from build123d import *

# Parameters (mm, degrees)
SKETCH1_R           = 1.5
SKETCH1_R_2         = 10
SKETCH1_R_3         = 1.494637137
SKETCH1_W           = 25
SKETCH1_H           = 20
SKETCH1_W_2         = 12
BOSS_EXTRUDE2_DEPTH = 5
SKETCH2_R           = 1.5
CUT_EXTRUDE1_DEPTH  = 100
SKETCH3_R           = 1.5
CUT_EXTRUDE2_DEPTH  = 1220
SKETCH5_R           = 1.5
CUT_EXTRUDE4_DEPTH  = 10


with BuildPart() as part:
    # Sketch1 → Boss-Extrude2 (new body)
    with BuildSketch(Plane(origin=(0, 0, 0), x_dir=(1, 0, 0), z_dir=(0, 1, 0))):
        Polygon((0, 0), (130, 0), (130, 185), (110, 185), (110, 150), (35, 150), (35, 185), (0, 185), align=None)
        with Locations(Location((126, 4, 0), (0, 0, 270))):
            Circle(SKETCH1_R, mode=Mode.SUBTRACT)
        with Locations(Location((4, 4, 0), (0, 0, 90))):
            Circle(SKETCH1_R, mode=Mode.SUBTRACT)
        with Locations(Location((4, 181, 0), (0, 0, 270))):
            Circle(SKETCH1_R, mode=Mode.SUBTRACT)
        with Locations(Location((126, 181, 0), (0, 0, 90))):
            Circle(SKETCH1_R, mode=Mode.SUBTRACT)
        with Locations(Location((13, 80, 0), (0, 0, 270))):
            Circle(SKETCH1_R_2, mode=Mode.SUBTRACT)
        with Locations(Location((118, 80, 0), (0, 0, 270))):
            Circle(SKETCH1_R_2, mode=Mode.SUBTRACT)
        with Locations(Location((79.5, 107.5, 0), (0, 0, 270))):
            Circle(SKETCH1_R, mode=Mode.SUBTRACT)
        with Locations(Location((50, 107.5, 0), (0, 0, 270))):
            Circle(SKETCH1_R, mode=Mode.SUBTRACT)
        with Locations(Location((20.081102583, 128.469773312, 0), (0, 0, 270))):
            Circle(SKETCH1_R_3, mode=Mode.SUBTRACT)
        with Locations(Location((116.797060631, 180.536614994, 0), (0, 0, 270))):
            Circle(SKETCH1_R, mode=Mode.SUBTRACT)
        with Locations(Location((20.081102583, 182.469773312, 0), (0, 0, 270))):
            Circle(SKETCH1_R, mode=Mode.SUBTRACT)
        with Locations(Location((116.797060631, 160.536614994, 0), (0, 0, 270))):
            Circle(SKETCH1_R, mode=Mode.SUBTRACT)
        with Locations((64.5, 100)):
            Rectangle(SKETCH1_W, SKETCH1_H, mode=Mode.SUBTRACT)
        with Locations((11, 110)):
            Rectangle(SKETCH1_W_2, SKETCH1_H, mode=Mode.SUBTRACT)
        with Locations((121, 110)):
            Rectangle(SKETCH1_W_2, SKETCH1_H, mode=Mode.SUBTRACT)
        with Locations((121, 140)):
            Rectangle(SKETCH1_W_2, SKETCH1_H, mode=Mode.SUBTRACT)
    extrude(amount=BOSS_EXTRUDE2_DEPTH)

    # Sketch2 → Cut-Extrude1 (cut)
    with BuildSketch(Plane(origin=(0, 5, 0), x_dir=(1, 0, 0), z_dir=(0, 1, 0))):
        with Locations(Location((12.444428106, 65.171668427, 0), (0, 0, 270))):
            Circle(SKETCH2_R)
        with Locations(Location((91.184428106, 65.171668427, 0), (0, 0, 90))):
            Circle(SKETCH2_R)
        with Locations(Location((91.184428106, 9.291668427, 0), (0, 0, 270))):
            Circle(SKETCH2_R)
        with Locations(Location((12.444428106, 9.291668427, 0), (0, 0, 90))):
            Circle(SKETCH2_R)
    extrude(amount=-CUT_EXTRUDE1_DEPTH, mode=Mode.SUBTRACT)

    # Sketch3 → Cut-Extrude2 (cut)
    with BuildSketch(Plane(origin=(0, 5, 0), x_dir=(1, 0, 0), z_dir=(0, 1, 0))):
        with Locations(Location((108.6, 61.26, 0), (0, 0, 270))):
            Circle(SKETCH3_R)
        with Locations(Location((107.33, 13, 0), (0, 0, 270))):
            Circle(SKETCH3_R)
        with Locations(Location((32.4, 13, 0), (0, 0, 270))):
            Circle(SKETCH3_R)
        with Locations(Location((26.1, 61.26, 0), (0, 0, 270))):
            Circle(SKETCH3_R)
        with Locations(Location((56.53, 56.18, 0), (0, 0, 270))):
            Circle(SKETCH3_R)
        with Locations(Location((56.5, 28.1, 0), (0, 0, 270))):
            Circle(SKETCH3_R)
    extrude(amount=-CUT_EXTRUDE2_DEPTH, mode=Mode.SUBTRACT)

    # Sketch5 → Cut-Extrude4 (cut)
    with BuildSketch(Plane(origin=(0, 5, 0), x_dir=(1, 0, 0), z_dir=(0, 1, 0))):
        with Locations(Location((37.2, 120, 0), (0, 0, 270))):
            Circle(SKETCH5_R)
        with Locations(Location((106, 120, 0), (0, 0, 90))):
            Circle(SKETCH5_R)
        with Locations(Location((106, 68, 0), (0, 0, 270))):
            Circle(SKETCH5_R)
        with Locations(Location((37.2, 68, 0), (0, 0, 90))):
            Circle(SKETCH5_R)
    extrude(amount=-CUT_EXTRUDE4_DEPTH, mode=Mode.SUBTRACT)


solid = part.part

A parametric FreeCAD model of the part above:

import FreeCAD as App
import Part
import Sketcher

V = App.Vector


def add_polygon(sketch, points):
    """Adds a closed chain of lines whose ends are joined by coincident constraints."""
    first, n = sketch.GeometryCount, len(points)
    for a, b in zip(points, points[1:] + points[:1]):
        sketch.addGeometry(Part.LineSegment(App.Vector(*a, 0), App.Vector(*b, 0)), False)
    for i in range(n):
        sketch.addConstraint(Sketcher.Constraint("Coincident", first + i, 2, first + (i + 1) % n, 1))

doc = App.newDocument("Part")
body = doc.addObject("PartDesign::Body", "Body")

# Sketch on XZ plane
sketch1 = doc.addObject("Sketcher::SketchObject", "Sketch")
body.addObject(sketch1)
sketch1.AttachmentSupport = (doc.XZ_Plane, [""])
sketch1.MapMode = "FlatFace"
add_polygon(sketch1, [(0, 0), (130, 0), (130, -185), (110, -185), (110, -150), (35, -150), (35, -185), (0, -185)])  # lines 0-7
sketch1.addGeometry(Part.Circle(V(4, -4, 0), V(0, 0, 1), 1.5), False)  # 8
sketch1.addGeometry(Part.Circle(V(13, -80, 0), V(0, 0, 1), 10), False)  # 9
sketch1.addGeometry(Part.Circle(V(126, -4, 0), V(0, 0, 1), 1.5), False)  # 10
sketch1.addGeometry(Part.Circle(V(118, -80, 0), V(0, 0, 1), 10), False)  # 11
add_polygon(sketch1, [(17, -100), (5, -100), (5, -120), (17, -120)])  # lines 12-15
sketch1.addGeometry(Part.Circle(V(20.1, -128.5, 0), V(0, 0, 1), 1.5), False)  # 16
add_polygon(sketch1, [(77, -90), (52, -90), (52, -110), (77, -110)])  # lines 17-20
sketch1.addGeometry(Part.Circle(V(50, -107.5, 0), V(0, 0, 1), 1.5), False)  # 21
sketch1.addGeometry(Part.Circle(V(4, -181, 0), V(0, 0, 1), 1.5), False)  # 22
sketch1.addGeometry(Part.Circle(V(20.1, -182.5, 0), V(0, 0, 1), 1.5), False)  # 23
sketch1.addGeometry(Part.Circle(V(79.5, -107.5, 0), V(0, 0, 1), 1.5), False)  # 24
add_polygon(sketch1, [(127, -100), (115, -100), (115, -120), (127, -120)])  # lines 25-28
add_polygon(sketch1, [(127, -130), (115, -130), (115, -150), (127, -150)])  # lines 29-32
sketch1.addGeometry(Part.Circle(V(116.8, -160.5, 0), V(0, 0, 1), 1.5), False)  # 33
sketch1.addGeometry(Part.Circle(V(116.8, -180.5, 0), V(0, 0, 1), 1.5), False)  # 34
sketch1.addGeometry(Part.Circle(V(126, -181, 0), V(0, 0, 1), 1.5), False)  # 35
sketch1.addConstraint(Sketcher.Constraint("Horizontal", 0))
sketch1.addConstraint(Sketcher.Constraint("Vertical", 1))
sketch1.addConstraint(Sketcher.Constraint("Horizontal", 2))
sketch1.addConstraint(Sketcher.Constraint("Vertical", 3))
sketch1.addConstraint(Sketcher.Constraint("Horizontal", 4))
sketch1.addConstraint(Sketcher.Constraint("Vertical", 5))
sketch1.addConstraint(Sketcher.Constraint("Horizontal", 6))
sketch1.addConstraint(Sketcher.Constraint("Vertical", 7))
sketch1.addConstraint(Sketcher.Constraint("Horizontal", 12))
sketch1.addConstraint(Sketcher.Constraint("Vertical", 13))
sketch1.addConstraint(Sketcher.Constraint("Horizontal", 14))
sketch1.addConstraint(Sketcher.Constraint("Vertical", 15))
sketch1.addConstraint(Sketcher.Constraint("Horizontal", 17))
sketch1.addConstraint(Sketcher.Constraint("Vertical", 18))
sketch1.addConstraint(Sketcher.Constraint("Horizontal", 19))
sketch1.addConstraint(Sketcher.Constraint("Vertical", 20))
sketch1.addConstraint(Sketcher.Constraint("Horizontal", 25))
sketch1.addConstraint(Sketcher.Constraint("Vertical", 26))
sketch1.addConstraint(Sketcher.Constraint("Horizontal", 27))
sketch1.addConstraint(Sketcher.Constraint("Vertical", 28))
sketch1.addConstraint(Sketcher.Constraint("Horizontal", 29))
sketch1.addConstraint(Sketcher.Constraint("Vertical", 30))
sketch1.addConstraint(Sketcher.Constraint("Horizontal", 31))
sketch1.addConstraint(Sketcher.Constraint("Vertical", 32))
sketch1.addConstraint(Sketcher.Constraint("Coincident", 7, 2, -1, 1))
sketch1.addConstraint(Sketcher.Constraint("Equal", 8, 10))
sketch1.addConstraint(Sketcher.Constraint("Equal", 9, 11))
sketch1.addConstraint(Sketcher.Constraint("Equal", 10, 21))
sketch1.addConstraint(Sketcher.Constraint("Equal", 21, 22))
sketch1.addConstraint(Sketcher.Constraint("Equal", 22, 23))
sketch1.addConstraint(Sketcher.Constraint("Equal", 23, 24))
sketch1.addConstraint(Sketcher.Constraint("Equal", 24, 33))
sketch1.addConstraint(Sketcher.Constraint("Equal", 33, 34))
sketch1.addConstraint(Sketcher.Constraint("Equal", 34, 35))
sketch1.addConstraint(Sketcher.Constraint("Horizontal", 8, 3, 10, 3))
sketch1.addConstraint(Sketcher.Constraint("Horizontal", 9, 3, 11, 3))
sketch1.addConstraint(Sketcher.Constraint("Horizontal", 21, 3, 24, 3))
sketch1.addConstraint(Sketcher.Constraint("Horizontal", 22, 3, 35, 3))
sketch1.addConstraint(Sketcher.Constraint("Horizontal", 2, 2, 5, 2))
sketch1.addConstraint(Sketcher.Constraint("Horizontal", 15, 2, 25, 2))
sketch1.addConstraint(Sketcher.Constraint("Horizontal", 14, 2, 26, 2))
sketch1.addConstraint(Sketcher.Constraint("Horizontal", 4, 2, 30, 2))
sketch1.addConstraint(Sketcher.Constraint("Vertical", 8, 3, 22, 3))
sketch1.addConstraint(Sketcher.Constraint("Vertical", 16, 3, 23, 3))
sketch1.addConstraint(Sketcher.Constraint("Vertical", 33, 3, 34, 3))
sketch1.addConstraint(Sketcher.Constraint("Vertical", 10, 3, 35, 3))
sketch1.addConstraint(Sketcher.Constraint("Vertical", 26, 2, 29, 2))
sketch1.addConstraint(Sketcher.Constraint("Vertical", 28, 2, 31, 2))
sketch1.addConstraint(Sketcher.Constraint("Equal", 14, 25))
sketch1.addConstraint(Sketcher.Constraint("Equal", 6, 3))
sketch1.addConstraint(Sketcher.Constraint("Equal", 2, 13))
sketch1.addConstraint(Sketcher.Constraint("Equal", 15, 18))
sketch1.addConstraint(Sketcher.Constraint("Equal", 28, 30))
sketch1.addConstraint(Sketcher.Constraint("Diameter", 8, 3.0))
sketch1.addConstraint(Sketcher.Constraint("Diameter", 9, 20.0))
sketch1.addConstraint(Sketcher.Constraint("DistanceX", 0, 1, 0, 2, 130.0))
sketch1.addConstraint(Sketcher.Constraint("DistanceX", 2, 2, 2, 1, 20.0))
sketch1.addConstraint(Sketcher.Constraint("DistanceX", 4, 2, 4, 1, 75.0))
sketch1.addConstraint(Sketcher.Constraint("DistanceX", 12, 2, 12, 1, 12.0))
sketch1.addConstraint(Sketcher.Constraint("DistanceX", 17, 2, 17, 1, 25.0))
sketch1.addConstraint(Sketcher.Constraint("DistanceY", 1, 2, 1, 1, 185.0))
sketch1.addConstraint(Sketcher.Constraint("DistanceX", -1, 1, 8, 3, 4.0))
sketch1.addConstraint(Sketcher.Constraint("DistanceY", 8, 3, -1, 1, 4.0))
sketch1.addConstraint(Sketcher.Constraint("DistanceX", -1, 1, 9, 3, 13.0))
sketch1.addConstraint(Sketcher.Constraint("DistanceY", 9, 3, -1, 1, 80.0))
sketch1.addConstraint(Sketcher.Constraint("DistanceX", -1, 1, 10, 3, 126.0))
sketch1.addConstraint(Sketcher.Constraint("DistanceX", -1, 1, 11, 3, 118.0))
sketch1.addConstraint(Sketcher.Constraint("DistanceX", -1, 1, 21, 3, 50.0))
sketch1.addConstraint(Sketcher.Constraint("DistanceY", 22, 3, -1, 1, 181.0))
sketch1.addConstraint(Sketcher.Constraint("DistanceX", -1, 1, 12, 2, 5.0))
sketch1.addConstraint(Sketcher.Constraint("DistanceY", 12, 2, -1, 1, 100.0))
sketch1.addConstraint(Sketcher.Constraint("DistanceX", -1, 1, 17, 2, 52.0))
sketch1.addConstraint(Sketcher.Constraint("DistanceY", 17, 2, -1, 1, 90.0))
sketch1.addConstraint(Sketcher.Constraint("DistanceX", -1, 1, 25, 2, 115.0))
sketch1.addConstraint(Sketcher.Constraint("DistanceY", 23, 3, 16, 3, 54.0))
sketch1.addConstraint(Sketcher.Constraint("DistanceY", 34, 3, 33, 3, 20.0))
sketch1.addConstraint(Sketcher.Constraint("DistanceY", 21, 3, -1, 1, 107.5))
sketch1.addConstraint(Sketcher.Constraint("DistanceX", -1, 1, 24, 3, 79.5))
sketch1.addConstraint(Sketcher.Constraint("Diameter", 16, 2.989274))
sketch1.addConstraint(Sketcher.Constraint("DistanceX", -1, 1, 33, 3, 116.797061))
sketch1.addConstraint(Sketcher.Constraint("DistanceX", 23, 3, 33, 3, 96.715958))
sketch1.addConstraint(Sketcher.Constraint("DistanceY", 23, 3, 33, 3, 21.933158))
sketch1.addConstraint(Sketcher.Constraint("DistanceY", 16, 3, -1, 1, 128.469773))
pad1 = doc.addObject("PartDesign::Pad", "Pad")
body.addObject(pad1)
pad1.Profile = sketch1
pad1.Length = 5
pad1.Reversed = True

# Sketch on XZ plane
sketch2 = doc.addObject("Sketcher::SketchObject", "Sketch001")
body.addObject(sketch2)
sketch2.AttachmentSupport = (doc.XZ_Plane, [""])
sketch2.MapMode = "FlatFace"
sketch2.AttachmentOffset = App.Placement(V(0, 0, -5), App.Rotation())
sketch2.addGeometry(Part.Circle(V(12.4, -65.2, 0), V(0, 0, 1), 1.5), False)
sketch2.addGeometry(Part.Circle(V(91.2, -65.2, 0), V(0, 0, 1), 1.5), False)
sketch2.addGeometry(Part.Circle(V(91.2, -9.3, 0), V(0, 0, 1), 1.5), False)
sketch2.addGeometry(Part.Circle(V(12.4, -9.3, 0), V(0, 0, 1), 1.5), False)
sketch2.addConstraint(Sketcher.Constraint("Equal", 0, 1))
sketch2.addConstraint(Sketcher.Constraint("Equal", 1, 2))
sketch2.addConstraint(Sketcher.Constraint("Equal", 2, 3))
sketch2.addConstraint(Sketcher.Constraint("Horizontal", 0, 3, 1, 3))
sketch2.addConstraint(Sketcher.Constraint("Horizontal", 2, 3, 3, 3))
sketch2.addConstraint(Sketcher.Constraint("Vertical", 1, 3, 2, 3))
sketch2.addConstraint(Sketcher.Constraint("Vertical", 0, 3, 3, 3))
sketch2.addConstraint(Sketcher.Constraint("Diameter", 0, 3.0))
sketch2.addConstraint(Sketcher.Constraint("DistanceX", 0, 3, 1, 3, 78.74))
sketch2.addConstraint(Sketcher.Constraint("DistanceY", 1, 3, 2, 3, 55.88))
sketch2.addConstraint(Sketcher.Constraint("DistanceX", -1, 1, 0, 3, 12.444428))
sketch2.addConstraint(Sketcher.Constraint("DistanceY", 0, 3, -1, 1, 65.171668))
pocket1 = doc.addObject("PartDesign::Pocket", "Pocket")
body.addObject(pocket1)
pocket1.Profile = sketch2
pocket1.Length = 100
pocket1.Reversed = True

# Sketch on XZ plane
sketch3 = doc.addObject("Sketcher::SketchObject", "Sketch002")
body.addObject(sketch3)
sketch3.AttachmentSupport = (doc.XZ_Plane, [""])
sketch3.MapMode = "FlatFace"
sketch3.AttachmentOffset = App.Placement(V(0, 0, -5), App.Rotation())
sketch3.addGeometry(Part.Circle(V(108.6, -61.3, 0), V(0, 0, 1), 1.5), False)
sketch3.addGeometry(Part.Circle(V(107.3, -13, 0), V(0, 0, 1), 1.5), False)
sketch3.addGeometry(Part.Circle(V(32.4, -13, 0), V(0, 0, 1), 1.5), False)
sketch3.addGeometry(Part.Circle(V(26.1, -61.3, 0), V(0, 0, 1), 1.5), False)
sketch3.addGeometry(Part.Circle(V(56.5, -56.2, 0), V(0, 0, 1), 1.5), False)
sketch3.addGeometry(Part.Circle(V(56.5, -28.1, 0), V(0, 0, 1), 1.5), False)
sketch3.addConstraint(Sketcher.Constraint("Equal", 0, 1))
sketch3.addConstraint(Sketcher.Constraint("Equal", 1, 2))
sketch3.addConstraint(Sketcher.Constraint("Equal", 2, 3))
sketch3.addConstraint(Sketcher.Constraint("Equal", 3, 4))
sketch3.addConstraint(Sketcher.Constraint("Equal", 4, 5))
sketch3.addConstraint(Sketcher.Constraint("Horizontal", 1, 3, 2, 3))
sketch3.addConstraint(Sketcher.Constraint("Horizontal", 0, 3, 3, 3))
sketch3.addConstraint(Sketcher.Constraint("Diameter", 0, 3.0))
sketch3.addConstraint(Sketcher.Constraint("DistanceY", 1, 3, -1, 1, 13.0))
sketch3.addConstraint(Sketcher.Constraint("DistanceX", -1, 1, 0, 3, 108.6))
sketch3.addConstraint(Sketcher.Constraint("DistanceX", -1, 1, 2, 3, 32.4))
sketch3.addConstraint(Sketcher.Constraint("DistanceX", -1, 1, 3, 3, 26.1))
sketch3.addConstraint(Sketcher.Constraint("DistanceX", -1, 1, 5, 3, 56.5))
sketch3.addConstraint(Sketcher.Constraint("DistanceY", 5, 3, -1, 1, 28.1))
sketch3.addConstraint(Sketcher.Constraint("DistanceX", 4, 3, 1, 3, 50.8))
sketch3.addConstraint(Sketcher.Constraint("DistanceY", 0, 3, -1, 1, 61.26))
sketch3.addConstraint(Sketcher.Constraint("DistanceX", -1, 1, 1, 3, 107.33))
sketch3.addConstraint(Sketcher.Constraint("DistanceY", 4, 3, -1, 1, 56.18))
pocket2 = doc.addObject("PartDesign::Pocket", "Pocket001")
body.addObject(pocket2)
pocket2.Profile = sketch3
pocket2.Length = 1220
pocket2.Reversed = True

# Sketch on XZ plane
sketch4 = doc.addObject("Sketcher::SketchObject", "Sketch003")
body.addObject(sketch4)
sketch4.AttachmentSupport = (doc.XZ_Plane, [""])
sketch4.MapMode = "FlatFace"
sketch4.AttachmentOffset = App.Placement(V(0, 0, -5), App.Rotation())
sketch4.addGeometry(Part.Circle(V(37.2, -120, 0), V(0, 0, 1), 1.5), False)
sketch4.addGeometry(Part.Circle(V(106, -120, 0), V(0, 0, 1), 1.5), False)
sketch4.addGeometry(Part.Circle(V(106, -68, 0), V(0, 0, 1), 1.5), False)
sketch4.addGeometry(Part.Circle(V(37.2, -68, 0), V(0, 0, 1), 1.5), False)
sketch4.addConstraint(Sketcher.Constraint("Equal", 0, 1))
sketch4.addConstraint(Sketcher.Constraint("Equal", 1, 2))
sketch4.addConstraint(Sketcher.Constraint("Equal", 2, 3))
sketch4.addConstraint(Sketcher.Constraint("Horizontal", 0, 3, 1, 3))
sketch4.addConstraint(Sketcher.Constraint("Horizontal", 2, 3, 3, 3))
sketch4.addConstraint(Sketcher.Constraint("Vertical", 1, 3, 2, 3))
sketch4.addConstraint(Sketcher.Constraint("Vertical", 0, 3, 3, 3))
sketch4.addConstraint(Sketcher.Constraint("Diameter", 0, 3.0))
sketch4.addConstraint(Sketcher.Constraint("DistanceY", 0, 3, -1, 1, 120.0))
sketch4.addConstraint(Sketcher.Constraint("DistanceX", -1, 1, 1, 3, 106.0))
sketch4.addConstraint(Sketcher.Constraint("DistanceY", 2, 3, -1, 1, 68.0))
sketch4.addConstraint(Sketcher.Constraint("DistanceX", -1, 1, 0, 3, 37.2))
pocket3 = doc.addObject("PartDesign::Pocket", "Pocket002")
body.addObject(pocket3)
pocket3.Profile = sketch4
pocket3.Length = 10
pocket3.Reversed = True

doc.recompute()
